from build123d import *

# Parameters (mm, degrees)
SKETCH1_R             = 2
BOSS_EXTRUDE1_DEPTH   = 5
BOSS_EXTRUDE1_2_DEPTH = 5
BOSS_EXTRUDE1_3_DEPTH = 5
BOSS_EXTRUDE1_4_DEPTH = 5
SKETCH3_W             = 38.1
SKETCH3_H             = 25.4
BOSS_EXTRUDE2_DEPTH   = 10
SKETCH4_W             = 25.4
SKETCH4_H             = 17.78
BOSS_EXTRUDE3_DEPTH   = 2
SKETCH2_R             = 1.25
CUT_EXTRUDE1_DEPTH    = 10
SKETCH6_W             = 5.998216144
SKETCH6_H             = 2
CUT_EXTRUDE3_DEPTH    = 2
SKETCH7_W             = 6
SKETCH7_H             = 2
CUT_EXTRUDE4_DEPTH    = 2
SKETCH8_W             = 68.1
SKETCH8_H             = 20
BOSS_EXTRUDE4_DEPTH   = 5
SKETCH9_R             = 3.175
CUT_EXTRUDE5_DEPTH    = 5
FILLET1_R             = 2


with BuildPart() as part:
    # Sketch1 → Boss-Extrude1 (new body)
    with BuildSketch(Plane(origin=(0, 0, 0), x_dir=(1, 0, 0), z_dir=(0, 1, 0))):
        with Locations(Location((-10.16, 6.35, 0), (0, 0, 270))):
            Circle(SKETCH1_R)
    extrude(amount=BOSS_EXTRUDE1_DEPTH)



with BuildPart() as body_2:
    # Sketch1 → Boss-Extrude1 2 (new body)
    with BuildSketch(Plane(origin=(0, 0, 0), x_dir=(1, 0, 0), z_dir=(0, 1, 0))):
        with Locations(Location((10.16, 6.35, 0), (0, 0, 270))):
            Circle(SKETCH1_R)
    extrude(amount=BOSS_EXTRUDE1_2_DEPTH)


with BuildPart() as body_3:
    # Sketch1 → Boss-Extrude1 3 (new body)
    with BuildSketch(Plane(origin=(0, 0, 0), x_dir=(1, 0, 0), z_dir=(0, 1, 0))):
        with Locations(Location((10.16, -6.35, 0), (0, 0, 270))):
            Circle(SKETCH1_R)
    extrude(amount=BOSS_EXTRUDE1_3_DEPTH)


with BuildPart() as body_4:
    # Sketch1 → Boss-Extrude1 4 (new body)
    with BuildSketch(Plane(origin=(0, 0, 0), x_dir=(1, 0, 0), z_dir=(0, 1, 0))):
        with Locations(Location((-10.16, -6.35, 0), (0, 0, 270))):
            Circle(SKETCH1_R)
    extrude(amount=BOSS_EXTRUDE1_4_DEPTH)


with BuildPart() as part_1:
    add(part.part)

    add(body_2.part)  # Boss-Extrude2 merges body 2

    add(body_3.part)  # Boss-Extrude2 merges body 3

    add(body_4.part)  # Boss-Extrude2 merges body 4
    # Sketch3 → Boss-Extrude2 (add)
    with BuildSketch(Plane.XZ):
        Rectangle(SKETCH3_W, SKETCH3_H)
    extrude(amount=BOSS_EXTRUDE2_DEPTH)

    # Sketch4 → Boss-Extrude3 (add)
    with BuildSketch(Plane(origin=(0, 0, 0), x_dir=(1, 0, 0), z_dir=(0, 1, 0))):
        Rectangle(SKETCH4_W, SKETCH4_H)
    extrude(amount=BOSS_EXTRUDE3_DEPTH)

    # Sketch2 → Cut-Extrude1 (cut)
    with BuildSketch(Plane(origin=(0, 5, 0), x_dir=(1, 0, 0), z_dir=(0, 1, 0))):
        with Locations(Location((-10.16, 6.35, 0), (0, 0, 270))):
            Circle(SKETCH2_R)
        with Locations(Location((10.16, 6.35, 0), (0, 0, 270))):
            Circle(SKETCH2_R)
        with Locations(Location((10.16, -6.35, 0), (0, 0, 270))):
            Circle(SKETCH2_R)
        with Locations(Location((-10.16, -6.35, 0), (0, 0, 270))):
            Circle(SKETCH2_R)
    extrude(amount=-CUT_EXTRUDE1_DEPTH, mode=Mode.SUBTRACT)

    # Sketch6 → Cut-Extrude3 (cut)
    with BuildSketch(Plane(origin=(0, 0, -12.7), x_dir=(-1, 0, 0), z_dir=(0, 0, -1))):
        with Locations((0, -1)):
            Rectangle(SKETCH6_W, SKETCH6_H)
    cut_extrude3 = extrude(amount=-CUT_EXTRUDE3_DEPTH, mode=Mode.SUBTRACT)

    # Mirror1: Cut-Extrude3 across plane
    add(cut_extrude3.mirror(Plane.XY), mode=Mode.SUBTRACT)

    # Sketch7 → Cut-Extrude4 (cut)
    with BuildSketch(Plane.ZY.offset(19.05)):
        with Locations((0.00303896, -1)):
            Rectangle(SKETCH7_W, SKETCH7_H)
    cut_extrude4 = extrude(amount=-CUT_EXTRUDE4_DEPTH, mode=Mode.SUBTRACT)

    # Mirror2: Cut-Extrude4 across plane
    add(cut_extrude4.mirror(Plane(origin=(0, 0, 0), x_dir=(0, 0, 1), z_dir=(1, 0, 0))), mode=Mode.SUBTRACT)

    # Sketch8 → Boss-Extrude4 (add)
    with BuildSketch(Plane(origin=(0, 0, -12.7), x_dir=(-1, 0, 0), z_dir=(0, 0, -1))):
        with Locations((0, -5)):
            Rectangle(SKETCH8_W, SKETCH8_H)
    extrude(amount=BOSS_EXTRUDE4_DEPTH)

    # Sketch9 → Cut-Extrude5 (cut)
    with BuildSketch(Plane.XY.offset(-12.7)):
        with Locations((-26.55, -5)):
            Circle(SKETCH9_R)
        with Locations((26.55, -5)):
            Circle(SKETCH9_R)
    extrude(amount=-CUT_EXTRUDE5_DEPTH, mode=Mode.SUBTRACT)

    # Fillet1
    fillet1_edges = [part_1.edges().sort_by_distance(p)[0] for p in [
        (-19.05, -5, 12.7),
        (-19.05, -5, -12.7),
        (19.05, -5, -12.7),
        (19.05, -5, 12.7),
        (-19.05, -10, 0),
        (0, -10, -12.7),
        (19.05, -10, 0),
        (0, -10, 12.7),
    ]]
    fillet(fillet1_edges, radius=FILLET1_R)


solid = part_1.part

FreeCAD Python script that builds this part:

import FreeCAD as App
import Part
import Sketcher
from FreeCAD import Vector
Q = App.Units.Quantity


def edges_at(feature, points):
    """Names of the edges that pass closest to the given points."""
    edges = feature.Shape.Edges
    near = lambda p: min(range(len(edges)), key=lambda i: edges[i].distToShape(Part.Vertex(*p))[0])
    return sorted({f"Edge{near(p) + 1}" for p in points})


def add_polygon(sketch, points):
    """Adds a closed chain of lines whose ends are joined by coincident constraints."""
    first, n = sketch.GeometryCount, len(points)
    for a, b in zip(points, points[1:] + points[:1]):
        sketch.addGeometry(Part.LineSegment(App.Vector(*a, 0), App.Vector(*b, 0)), False)
    for i in range(n):
        sketch.addConstraint(Sketcher.Constraint("Coincident", first + i, 2, first + (i + 1) % n, 1))

doc = App.newDocument("Part")
body = doc.addObject("PartDesign::Body", "Body")

sketch1 = body.newObject("Sketcher::SketchObject", "Sketch")
sketch1.AttachmentSupport = (doc.getObject("XZ_Plane"), [""])
sketch1.MapMode = "FlatFace"
sketch1.addGeometry(Part.Circle(Vector(-10.2, -6.3, 0), Vector(0, 0, 1), 2), False)
sketch1.addConstraint(Sketcher.Constraint("Diameter", 0, Q("4 mm")))
sketch1.addConstraint(Sketcher.Constraint("DistanceX", 0, 3, -1, 1, Q("10.16 mm")))
sketch1.addConstraint(Sketcher.Constraint("DistanceY", 0, 3, -1, 1, Q("6.35 mm")))
pad1 = body.newObject("PartDesign::Pad", "Pad")
pad1.Profile = sketch1
pad1.Length = 5
pad1.Reversed = True
body2 = doc.addObject("PartDesign::Body", "Body001")

sketch2 = body2.newObject("Sketcher::SketchObject", "Sketch001")
sketch2.AttachmentSupport = (doc.getObject("XZ_Plane001"), [""])
sketch2.MapMode = "FlatFace"
sketch2.addGeometry(Part.Circle(Vector(10.2, -6.3, 0), Vector(0, 0, 1), 2), False)
sketch2.addConstraint(Sketcher.Constraint("Diameter", 0, Q("4 mm")))
sketch2.addConstraint(Sketcher.Constraint("DistanceX", -1, 1, 0, 3, Q("10.16 mm")))
sketch2.addConstraint(Sketcher.Constraint("DistanceY", 0, 3, -1, 1, Q("6.35 mm")))
pad2 = body2.newObject("PartDesign::Pad", "Pad001")
pad2.Profile = sketch2
pad2.Length = 5
pad2.Reversed = True
body3 = doc.addObject("PartDesign::Body", "Body002")

sketch3 = body3.newObject("Sketcher::SketchObject", "Sketch002")
sketch3.AttachmentSupport = (doc.getObject("XZ_Plane002"), [""])
sketch3.MapMode = "FlatFace"
sketch3.addGeometry(Part.Circle(Vector(10.2, 6.3, 0), Vector(0, 0, 1), 2), False)
sketch3.addConstraint(Sketcher.Constraint("Diameter", 0, Q("4 mm")))
sketch3.addConstraint(Sketcher.Constraint("DistanceX", -1, 1, 0, 3, Q("10.16 mm")))
sketch3.addConstraint(Sketcher.Constraint("DistanceY", -1, 1, 0, 3, Q("6.35 mm")))
pad3 = body3.newObject("PartDesign::Pad", "Pad002")
pad3.Profile = sketch3
pad3.Length = 5
pad3.Reversed = True
body4 = doc.addObject("PartDesign::Body", "Body003")

sketch4 = body4.newObject("Sketcher::SketchObject", "Sketch003")
sketch4.AttachmentSupport = (doc.getObject("XZ_Plane003"), [""])
sketch4.MapMode = "FlatFace"
sketch4.addGeometry(Part.Circle(Vector(-10.2, 6.3, 0), Vector(0, 0, 1), 2), False)
sketch4.addConstraint(Sketcher.Constraint("Diameter", 0, Q("4 mm")))
sketch4.addConstraint(Sketcher.Constraint("DistanceX", 0, 3, -1, 1, Q("10.16 mm")))
sketch4.addConstraint(Sketcher.Constraint("DistanceY", -1, 1, 0, 3, Q("6.35 mm")))
pad4 = body4.newObject("PartDesign::Pad", "Pad003")
pad4.Profile = sketch4
pad4.Length = 5
pad4.Reversed = True
body.AllowCompound = True
doc.recompute()

boolean = body.newObject("PartDesign::Boolean", "Boolean")
boolean.Type = "Fuse"
boolean.addObjects([body2])
doc.recompute()

boolean2 = body.newObject("PartDesign::Boolean", "Boolean001")
boolean2.Type = "Fuse"
boolean2.addObjects([body3])
doc.recompute()

boolean3 = body.newObject("PartDesign::Boolean", "Boolean002")
boolean3.Type = "Fuse"
boolean3.addObjects([body4])

sketch5 = body.newObject("Sketcher::SketchObject", "Sketch004")
sketch5.AttachmentSupport = (doc.getObject("XZ_Plane"), [""])
sketch5.MapMode = "FlatFace"
add_polygon(sketch5, [(-19, 13), (-19, -13), (19, -13), (19, 13)])
sketch5.addConstraint(Sketcher.Constraint("Vertical", 0))
sketch5.addConstraint(Sketcher.Constraint("Horizontal", 1))
sketch5.addConstraint(Sketcher.Constraint("Vertical", 2))
sketch5.addConstraint(Sketcher.Constraint("Horizontal", 3))
sketch5.addConstraint(Sketcher.Constraint("Symmetric", 0, 2, 2, 2, -1, 1))
sketch5.addConstraint(Sketcher.Constraint("DistanceX", 1, 1, 1, 2, Q("38.1 mm")))
sketch5.addConstraint(Sketcher.Constraint("DistanceY", 0, 2, 0, 1, Q("25.4 mm")))
pad5 = body.newObject("PartDesign::Pad", "Pad004")
pad5.Profile = sketch5
pad5.Length = 10

sketch6 = body.newObject("Sketcher::SketchObject", "Sketch005")
sketch6.AttachmentSupport = (doc.getObject("XZ_Plane"), [""])
sketch6.MapMode = "FlatFace"
add_polygon(sketch6, [(-13, -9), (-13, 9), (13, 9), (13, -9)])
sketch6.addConstraint(Sketcher.Constraint("Vertical", 0))
sketch6.addConstraint(Sketcher.Constraint("Horizontal", 1))
sketch6.addConstraint(Sketcher.Constraint("Vertical", 2))
sketch6.addConstraint(Sketcher.Constraint("Horizontal", 3))
sketch6.addConstraint(Sketcher.Constraint("Symmetric", 0, 2, 2, 2, -1, 1))
sketch6.addConstraint(Sketcher.Constraint("DistanceX", 1, 1, 1, 2, Q("25.4 mm")))
sketch6.addConstraint(Sketcher.Constraint("DistanceY", 0, 1, 0, 2, Q("17.78 mm")))
pad6 = body.newObject("PartDesign::Pad", "Pad005")
pad6.Profile = sketch6
pad6.Length = 2
pad6.Reversed = True

sketch7 = body.newObject("Sketcher::SketchObject", "Sketch006")
sketch7.AttachmentSupport = (doc.getObject("XZ_Plane"), [""])
sketch7.MapMode = "FlatFace"
sketch7.AttachmentOffset = App.Placement(Vector(0, 0, -5), App.Rotation())
sketch7.addGeometry(Part.Circle(Vector(-10.2, -6.3, 0), Vector(0, 0, 1), 1.2), False)
sketch7.addGeometry(Part.Circle(Vector(10.2, -6.3, 0), Vector(0, 0, 1), 1.2), False)
sketch7.addGeometry(Part.Circle(Vector(10.2, 6.3, 0), Vector(0, 0, 1), 1.2), False)
sketch7.addGeometry(Part.Circle(Vector(-10.2, 6.3, 0), Vector(0, 0, 1), 1.2), False)
sketch7.addConstraint(Sketcher.Constraint("Equal", 0, 1))
sketch7.addConstraint(Sketcher.Constraint("Equal", 1, 2))
sketch7.addConstraint(Sketcher.Constraint("Equal", 2, 3))
sketch7.addConstraint(Sketcher.Constraint("Symmetric", 0, 3, 2, 3, -1, 1))
sketch7.addConstraint(Sketcher.Constraint("Symmetric", 1, 3, 3, 3, -1, 1))
sketch7.addConstraint(Sketcher.Constraint("Symmetric", 0, 3, 1, 3, -2))
sketch7.addConstraint(Sketcher.Constraint("Diameter", 0, Q("2.5 mm")))
sketch7.addConstraint(Sketcher.Constraint("DistanceY", 1, 3, 2, 3, Q("12.7 mm")))
sketch7.addConstraint(Sketcher.Constraint("DistanceX", 0, 3, -1, 1, Q("10.16 mm")))
pocket1 = body.newObject("PartDesign::Pocket", "Pocket")
pocket1.Profile = sketch7
pocket1.Length = 10
pocket1.Reversed = True

sketch8 = body.newObject("Sketcher::SketchObject", "Sketch007")
sketch8.AttachmentSupport = (doc.getObject("XY_Plane"), [""])
sketch8.MapMode = "FlatFace"
sketch8.AttachmentOffset = App.Placement(Vector(0, 0, -12.7), App.Rotation())
add_polygon(sketch8, [(3, 0), (3, -2), (-3, -2), (-3, 0)])
sketch8.addConstraint(Sketcher.Constraint("Vertical", 0))
sketch8.addConstraint(Sketcher.Constraint("Horizontal", 1))
sketch8.addConstraint(Sketcher.Constraint("Vertical", 2))
sketch8.addConstraint(Sketcher.Constraint("Horizontal", 3))
sketch8.addConstraint(Sketcher.Constraint("Symmetric", 2, 2, 3, 2, -1, 1))
sketch8.addConstraint(Sketcher.Constraint("DistanceY", 0, 2, 0, 1, Q("2 mm")))
sketch8.addConstraint(Sketcher.Constraint("DistanceX", 1, 2, 1, 1, Q("5.998216 mm")))
pocket2 = body.newObject("PartDesign::Pocket", "Pocket001")
pocket2.Profile = sketch8
pocket2.Length = 2
pocket2.Reversed = True
doc.recompute()

mirrored = body.newObject("PartDesign::Mirrored", "Mirrored")
mirrored.Originals = [pocket2]
mirrored.MirrorPlane = (doc.getObject("XY_Plane"), [""])
body.Tip = mirrored

sketch9 = body.newObject("Sketcher::SketchObject", "Sketch008")
sketch9.AttachmentSupport = (doc.getObject("YZ_Plane"), [""])
sketch9.MapMode = "FlatFace"
sketch9.AttachmentOffset = App.Placement(Vector(0, 0, -19.05), App.Rotation())
add_polygon(sketch9, [(0, -3), (-2, -3), (-2, 3), (0, 3)])
sketch9.addConstraint(Sketcher.Constraint("Horizontal", 0))
sketch9.addConstraint(Sketcher.Constraint("Vertical", 1))
sketch9.addConstraint(Sketcher.Constraint("Horizontal", 2))
sketch9.addConstraint(Sketcher.Constraint("Vertical", 3))
sketch9.addConstraint(Sketcher.Constraint("PointOnObject", 2, 2, -2))
sketch9.addConstraint(Sketcher.Constraint("DistanceX", 0, 2, 0, 1, Q("2 mm")))
sketch9.addConstraint(Sketcher.Constraint("DistanceY", 1, 1, 1, 2, Q("6 mm")))
sketch9.addConstraint(Sketcher.Constraint("DistanceY", 0, 2, -1, 1, Q("2.996961 mm")))
pocket3 = body.newObject("PartDesign::Pocket", "Pocket002")
pocket3.Profile = sketch9
pocket3.Length = 2
pocket3.Reversed = True
doc.recompute()

mirrored2 = body.newObject("PartDesign::Mirrored", "Mirrored001")
mirrored2.Originals = [pocket3]
mirrored2.MirrorPlane = (doc.getObject("YZ_Plane"), [""])
body.Tip = mirrored2

sketch10 = body.newObject("Sketcher::SketchObject", "Sketch009")
sketch10.AttachmentSupport = (doc.getObject("XY_Plane"), [""])
sketch10.MapMode = "FlatFace"
sketch10.AttachmentOffset = App.Placement(Vector(0, 0, -12.7), App.Rotation())
add_polygon(sketch10, [(34, 5), (34, -15), (-34, -15), (-34, 5)])
sketch10.addConstraint(Sketcher.Constraint("Vertical", 0))
sketch10.addConstraint(Sketcher.Constraint("Horizontal", 1))
sketch10.addConstraint(Sketcher.Constraint("Vertical", 2))
sketch10.addConstraint(Sketcher.Constraint("Horizontal", 3))
sketch10.addConstraint(Sketcher.Constraint("DistanceY", 0, 2, 0, 1, Q("20 mm")))
sketch10.addConstraint(Sketcher.Constraint("DistanceX", 1, 2, 1, 1, Q("68.1 mm")))
sketch10.addConstraint(Sketcher.Constraint("DistanceY", 0, 2, -1, 1, Q("15 mm")))
sketch10.addConstraint(Sketcher.Constraint("DistanceX", -1, 1, 0, 2, Q("34.05 mm")))
pad7 = body.newObject("PartDesign::Pad", "Pad006")
pad7.Profile = sketch10
pad7.Length = 5
pad7.Reversed = True

sketch11 = body.newObject("Sketcher::SketchObject", "Sketch010")
sketch11.AttachmentSupport = (doc.getObject("XY_Plane"), [""])
sketch11.MapMode = "FlatFace"
sketch11.AttachmentOffset = App.Placement(Vector(0, 0, -12.7), App.Rotation())
sketch11.addGeometry(Part.Circle(Vector(-26.6, -5, 0), Vector(0, 0, 1), 3.2), False)
sketch11.addGeometry(Part.Circle(Vector(26.6, -5, 0), Vector(0, 0, 1), 3.2), False)
sketch11.addConstraint(Sketcher.Constraint("Equal", 0, 1))
sketch11.addConstraint(Sketcher.Constraint("Symmetric", 0, 3, 1, 3, -2))
sketch11.addConstraint(Sketcher.Constraint("Diameter", 0, Q("6.35 mm")))
sketch11.addConstraint(Sketcher.Constraint("DistanceY", 0, 3, -1, 1, Q("5 mm")))
sketch11.addConstraint(Sketcher.Constraint("DistanceX", 0, 3, 1, 3, Q("53.1 mm")))
pocket4 = body.newObject("PartDesign::Pocket", "Pocket003")
pocket4.Profile = sketch11
pocket4.Length = 5
doc.recompute()

fillet = body.newObject("PartDesign::Fillet", "Fillet")
fillet.Base = (pocket4, edges_at(pocket4, [
    (-19.05, -5, 12.7),
    (-19.05, -5, -12.7),
    (19.05, -5, -12.7),
    (19.05, -5, 12.7),
    (-19.05, -10, 0),
    (0, -10, -12.7),
    (19.05, -10, 0),
    (0, -10, 12.7),
]))
fillet.Radius = 2

doc.recompute()
